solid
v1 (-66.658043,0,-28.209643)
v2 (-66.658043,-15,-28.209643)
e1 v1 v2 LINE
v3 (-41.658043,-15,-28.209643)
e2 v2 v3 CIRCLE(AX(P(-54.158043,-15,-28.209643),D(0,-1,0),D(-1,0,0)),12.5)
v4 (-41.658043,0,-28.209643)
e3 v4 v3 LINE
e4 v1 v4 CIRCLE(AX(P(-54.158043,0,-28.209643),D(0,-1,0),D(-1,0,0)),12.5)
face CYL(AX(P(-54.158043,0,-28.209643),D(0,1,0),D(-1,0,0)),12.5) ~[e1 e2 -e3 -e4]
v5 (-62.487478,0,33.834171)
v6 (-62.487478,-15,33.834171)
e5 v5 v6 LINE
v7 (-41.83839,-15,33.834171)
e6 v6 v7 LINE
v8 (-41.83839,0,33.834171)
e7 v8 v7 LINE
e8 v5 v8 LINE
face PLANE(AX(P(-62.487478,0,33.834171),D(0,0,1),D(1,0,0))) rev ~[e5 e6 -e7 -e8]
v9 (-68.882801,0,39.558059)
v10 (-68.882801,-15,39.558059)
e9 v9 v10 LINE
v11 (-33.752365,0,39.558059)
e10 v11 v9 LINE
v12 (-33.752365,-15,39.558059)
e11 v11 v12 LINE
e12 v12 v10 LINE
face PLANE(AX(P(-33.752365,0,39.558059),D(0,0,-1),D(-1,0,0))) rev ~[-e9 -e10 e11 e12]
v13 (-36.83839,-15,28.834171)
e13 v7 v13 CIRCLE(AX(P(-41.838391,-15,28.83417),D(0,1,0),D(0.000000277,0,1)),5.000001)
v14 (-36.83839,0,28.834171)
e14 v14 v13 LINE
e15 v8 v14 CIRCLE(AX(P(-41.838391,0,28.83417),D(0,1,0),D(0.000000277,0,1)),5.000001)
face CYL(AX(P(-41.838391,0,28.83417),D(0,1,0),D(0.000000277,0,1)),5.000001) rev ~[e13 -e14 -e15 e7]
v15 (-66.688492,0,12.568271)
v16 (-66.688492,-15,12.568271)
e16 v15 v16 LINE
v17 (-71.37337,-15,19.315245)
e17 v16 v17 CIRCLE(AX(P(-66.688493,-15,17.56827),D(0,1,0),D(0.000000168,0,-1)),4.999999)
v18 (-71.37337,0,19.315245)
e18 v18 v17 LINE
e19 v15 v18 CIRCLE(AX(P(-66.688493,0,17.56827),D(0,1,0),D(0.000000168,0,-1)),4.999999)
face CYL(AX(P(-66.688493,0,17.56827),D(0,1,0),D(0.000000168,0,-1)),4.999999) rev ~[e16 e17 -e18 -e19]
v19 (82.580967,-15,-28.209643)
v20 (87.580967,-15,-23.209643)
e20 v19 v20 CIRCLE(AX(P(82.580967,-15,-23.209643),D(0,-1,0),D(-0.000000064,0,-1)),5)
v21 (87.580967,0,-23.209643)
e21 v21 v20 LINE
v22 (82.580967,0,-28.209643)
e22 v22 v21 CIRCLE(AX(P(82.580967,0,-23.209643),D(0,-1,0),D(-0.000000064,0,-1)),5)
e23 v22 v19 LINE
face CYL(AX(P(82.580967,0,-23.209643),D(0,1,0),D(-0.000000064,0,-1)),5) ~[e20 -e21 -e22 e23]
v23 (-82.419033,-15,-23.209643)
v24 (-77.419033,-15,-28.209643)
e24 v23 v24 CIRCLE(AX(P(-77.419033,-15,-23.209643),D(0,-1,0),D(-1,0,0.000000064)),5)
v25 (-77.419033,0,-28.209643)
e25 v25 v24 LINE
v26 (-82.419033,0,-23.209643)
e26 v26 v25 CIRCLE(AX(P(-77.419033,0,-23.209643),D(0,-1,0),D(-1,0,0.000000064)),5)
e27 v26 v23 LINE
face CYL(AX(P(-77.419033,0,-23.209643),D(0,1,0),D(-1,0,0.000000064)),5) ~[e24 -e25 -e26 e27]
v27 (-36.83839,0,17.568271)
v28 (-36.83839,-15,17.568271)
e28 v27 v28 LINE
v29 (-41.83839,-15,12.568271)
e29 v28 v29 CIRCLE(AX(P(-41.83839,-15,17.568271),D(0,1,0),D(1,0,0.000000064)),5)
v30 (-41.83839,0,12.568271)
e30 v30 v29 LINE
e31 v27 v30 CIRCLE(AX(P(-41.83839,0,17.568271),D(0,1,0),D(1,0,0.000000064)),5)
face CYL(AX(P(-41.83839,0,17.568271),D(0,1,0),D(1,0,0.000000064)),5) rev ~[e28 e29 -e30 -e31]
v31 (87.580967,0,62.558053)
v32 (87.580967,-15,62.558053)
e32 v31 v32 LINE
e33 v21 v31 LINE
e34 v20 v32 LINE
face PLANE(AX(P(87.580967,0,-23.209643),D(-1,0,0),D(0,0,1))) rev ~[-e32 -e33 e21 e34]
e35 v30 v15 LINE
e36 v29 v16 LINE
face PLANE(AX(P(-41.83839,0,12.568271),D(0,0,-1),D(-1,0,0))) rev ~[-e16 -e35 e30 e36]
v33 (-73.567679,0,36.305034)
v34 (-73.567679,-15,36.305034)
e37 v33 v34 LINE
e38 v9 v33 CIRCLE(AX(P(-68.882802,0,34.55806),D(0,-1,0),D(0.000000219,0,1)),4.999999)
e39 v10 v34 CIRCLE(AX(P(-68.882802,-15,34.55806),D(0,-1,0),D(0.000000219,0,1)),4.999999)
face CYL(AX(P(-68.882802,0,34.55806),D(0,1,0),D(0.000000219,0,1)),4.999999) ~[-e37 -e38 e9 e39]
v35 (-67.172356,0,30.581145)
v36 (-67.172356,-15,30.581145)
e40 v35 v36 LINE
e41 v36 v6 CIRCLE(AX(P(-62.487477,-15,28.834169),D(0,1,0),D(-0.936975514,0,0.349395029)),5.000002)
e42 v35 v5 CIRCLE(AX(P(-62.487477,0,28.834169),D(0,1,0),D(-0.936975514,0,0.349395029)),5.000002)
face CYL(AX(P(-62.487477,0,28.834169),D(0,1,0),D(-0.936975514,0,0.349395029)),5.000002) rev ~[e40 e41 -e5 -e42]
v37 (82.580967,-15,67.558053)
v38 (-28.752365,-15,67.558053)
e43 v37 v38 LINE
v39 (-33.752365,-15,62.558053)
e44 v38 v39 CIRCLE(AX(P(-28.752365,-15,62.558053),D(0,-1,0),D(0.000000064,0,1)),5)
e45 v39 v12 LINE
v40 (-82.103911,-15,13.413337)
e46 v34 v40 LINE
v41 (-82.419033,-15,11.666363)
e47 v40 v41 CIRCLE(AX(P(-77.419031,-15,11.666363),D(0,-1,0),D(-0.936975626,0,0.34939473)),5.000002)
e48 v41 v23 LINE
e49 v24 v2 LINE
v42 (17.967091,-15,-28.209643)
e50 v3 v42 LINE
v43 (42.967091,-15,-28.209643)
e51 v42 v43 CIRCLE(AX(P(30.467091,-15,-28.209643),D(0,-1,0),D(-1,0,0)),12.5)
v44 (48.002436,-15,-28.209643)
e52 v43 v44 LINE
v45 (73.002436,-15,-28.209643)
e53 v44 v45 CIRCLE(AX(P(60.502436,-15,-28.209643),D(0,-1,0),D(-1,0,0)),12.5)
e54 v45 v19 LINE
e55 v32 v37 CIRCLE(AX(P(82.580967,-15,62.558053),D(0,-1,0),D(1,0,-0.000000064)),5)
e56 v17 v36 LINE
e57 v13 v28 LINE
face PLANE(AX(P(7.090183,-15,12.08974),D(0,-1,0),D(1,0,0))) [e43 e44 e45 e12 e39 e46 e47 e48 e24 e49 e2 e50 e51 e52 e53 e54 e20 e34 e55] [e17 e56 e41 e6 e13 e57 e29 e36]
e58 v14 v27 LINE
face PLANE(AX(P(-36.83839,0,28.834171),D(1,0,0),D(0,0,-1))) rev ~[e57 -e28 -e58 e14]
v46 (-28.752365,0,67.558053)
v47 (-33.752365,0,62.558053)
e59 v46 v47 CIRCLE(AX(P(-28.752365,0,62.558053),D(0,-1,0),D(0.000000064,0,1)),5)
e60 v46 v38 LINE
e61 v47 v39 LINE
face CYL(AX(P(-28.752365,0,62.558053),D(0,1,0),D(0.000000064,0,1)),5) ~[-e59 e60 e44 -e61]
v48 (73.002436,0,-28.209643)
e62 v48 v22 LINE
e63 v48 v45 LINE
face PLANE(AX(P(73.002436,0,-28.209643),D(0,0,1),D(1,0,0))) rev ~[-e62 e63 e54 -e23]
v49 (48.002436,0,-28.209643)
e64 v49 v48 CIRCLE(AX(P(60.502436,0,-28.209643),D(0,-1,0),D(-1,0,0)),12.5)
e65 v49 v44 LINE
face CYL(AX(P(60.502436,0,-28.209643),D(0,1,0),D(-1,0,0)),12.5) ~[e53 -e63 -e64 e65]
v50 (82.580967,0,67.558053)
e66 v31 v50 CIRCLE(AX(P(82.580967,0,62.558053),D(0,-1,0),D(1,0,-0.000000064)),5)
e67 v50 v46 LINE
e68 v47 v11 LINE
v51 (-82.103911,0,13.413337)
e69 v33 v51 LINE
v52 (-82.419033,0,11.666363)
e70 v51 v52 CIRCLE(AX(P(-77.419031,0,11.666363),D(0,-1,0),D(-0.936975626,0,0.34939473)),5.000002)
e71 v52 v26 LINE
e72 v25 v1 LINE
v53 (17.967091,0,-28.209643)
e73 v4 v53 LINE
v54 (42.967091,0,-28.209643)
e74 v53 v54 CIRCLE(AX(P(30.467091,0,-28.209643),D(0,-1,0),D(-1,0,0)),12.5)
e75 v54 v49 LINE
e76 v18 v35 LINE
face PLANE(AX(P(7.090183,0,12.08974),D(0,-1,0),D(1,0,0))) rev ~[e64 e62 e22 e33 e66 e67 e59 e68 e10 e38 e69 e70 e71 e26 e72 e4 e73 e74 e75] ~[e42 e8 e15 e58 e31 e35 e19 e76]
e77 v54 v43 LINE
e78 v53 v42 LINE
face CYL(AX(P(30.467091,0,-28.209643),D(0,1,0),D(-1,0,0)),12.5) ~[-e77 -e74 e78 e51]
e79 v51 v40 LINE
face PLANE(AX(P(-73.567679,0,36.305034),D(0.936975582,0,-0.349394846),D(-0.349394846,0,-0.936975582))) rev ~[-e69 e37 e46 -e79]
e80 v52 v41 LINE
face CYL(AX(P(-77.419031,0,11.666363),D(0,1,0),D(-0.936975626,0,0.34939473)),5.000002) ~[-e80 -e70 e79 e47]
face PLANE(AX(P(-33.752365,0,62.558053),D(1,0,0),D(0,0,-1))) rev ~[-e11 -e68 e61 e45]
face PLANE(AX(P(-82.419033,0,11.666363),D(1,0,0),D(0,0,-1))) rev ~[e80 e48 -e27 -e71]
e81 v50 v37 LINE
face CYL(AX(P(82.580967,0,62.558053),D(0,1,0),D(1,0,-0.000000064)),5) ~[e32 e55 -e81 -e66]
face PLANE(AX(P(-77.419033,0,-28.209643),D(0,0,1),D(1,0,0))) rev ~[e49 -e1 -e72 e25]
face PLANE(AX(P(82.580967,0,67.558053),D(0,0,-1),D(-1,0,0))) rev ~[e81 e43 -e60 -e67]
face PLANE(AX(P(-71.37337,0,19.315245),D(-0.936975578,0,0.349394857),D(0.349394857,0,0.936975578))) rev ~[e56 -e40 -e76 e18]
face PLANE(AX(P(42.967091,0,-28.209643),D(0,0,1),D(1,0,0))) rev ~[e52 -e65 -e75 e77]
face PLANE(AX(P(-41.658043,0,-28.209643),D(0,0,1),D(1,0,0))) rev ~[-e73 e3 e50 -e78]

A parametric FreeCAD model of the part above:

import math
import FreeCAD as App
import Part
import Sketcher

V = App.Vector

doc = App.newDocument("Part")
body = doc.addObject("PartDesign::Body", "Body")

# Sketch on XZ plane
sketch1 = body.newObject("Sketcher::SketchObject", "Sketch")
sketch1.AttachmentSupport = (doc.getObject("XZ_Plane"), [""])
sketch1.MapMode = "FlatFace"
sketch1.addGeometry([
    Part.LineSegment(V(-33.752365, 39.558059, 0), V(-68.882801, 39.558059, 0)),  # 0
    Part.ArcOfCircle(Part.Circle(V(-68.882802, 34.55806, 0), V(0, 0, 1), 4.999999), math.radians(89.999987), math.radians(159.549693)),  # 1
    Part.LineSegment(V(-73.567679, 36.305034, 0), V(-82.103911, 13.413337, 0)),  # 2
    Part.ArcOfCircle(Part.Circle(V(-77.419031, 11.666363, 0), V(0, 0, 1), 5.000002), math.radians(159.549701), math.radians(179.999996)),  # 3
    Part.LineSegment(V(-82.419033, 11.666363, 0), V(-82.419033, -23.209643, 0)),  # 4
    Part.ArcOfCircle(Part.Circle(V(-77.419033, -23.209643, 0), V(0, 0, 1), 5), math.radians(179.999996), math.radians(270.000004)),  # 5
    Part.LineSegment(V(-77.419033, -28.209643, 0), V(-66.658043, -28.209643, 0)),  # 6
    Part.ArcOfCircle(Part.Circle(V(-54.158043, -28.209643, 0), V(0, 0, 1), 12.5), math.radians(180), math.radians(360)),  # 7
    Part.LineSegment(V(-41.658043, -28.209643, 0), V(17.967091, -28.209643, 0)),  # 8
    Part.ArcOfCircle(Part.Circle(V(30.467091, -28.209643, 0), V(0, 0, 1), 12.5), math.radians(180), math.radians(360)),  # 9
    Part.LineSegment(V(42.967091, -28.209643, 0), V(48.002436, -28.209643, 0)),  # 10
    Part.ArcOfCircle(Part.Circle(V(60.502436, -28.209643, 0), V(0, 0, 1), 12.5), math.radians(180), math.radians(360)),  # 11
    Part.LineSegment(V(73.002436, -28.209643, 0), V(82.580967, -28.209643, 0)),  # 12
    Part.ArcOfCircle(Part.Circle(V(82.580967, -23.209643, 0), V(0, 0, 1), 5), math.radians(-90.000004), math.radians(0.000004)),  # 13
    Part.LineSegment(V(87.580967, -23.209643, 0), V(87.580967, 62.558053, 0)),  # 14
    Part.ArcOfCircle(Part.Circle(V(82.580967, 62.558053, 0), V(0, 0, 1), 5), math.radians(-0.000004), math.radians(90.000004)),  # 15
    Part.LineSegment(V(82.580967, 67.558053, 0), V(-28.752365, 67.558053, 0)),  # 16
    Part.ArcOfCircle(Part.Circle(V(-28.752365, 62.558053, 0), V(0, 0, 1), 5), math.radians(89.999996), math.radians(180.000004)),  # 17
    Part.LineSegment(V(-33.752365, 62.558053, 0), V(-33.752365, 39.558059, 0)),  # 18
    Part.LineSegment(V(-71.37337, 19.315245, 0), V(-67.172356, 30.581145, 0)),  # 19
    Part.ArcOfCircle(Part.Circle(V(-62.487477, 28.834169, 0), V(0, 0, 1), 5.000002), math.radians(90.000014), math.radians(159.549683)),  # 20
    Part.LineSegment(V(-62.487478, 33.834171, 0), V(-41.83839, 33.834171, 0)),  # 21
    Part.ArcOfCircle(Part.Circle(V(-41.838391, 28.83417, 0), V(0, 0, 1), 5.000001), math.radians(0.000016), math.radians(89.999984)),  # 22
    Part.LineSegment(V(-36.83839, 28.834171, 0), V(-36.83839, 17.568271, 0)),  # 23
    Part.ArcOfCircle(Part.Circle(V(-41.83839, 17.568271, 0), V(0, 0, 1), 5), math.radians(-90.000004), math.radians(0.000004)),  # 24
    Part.LineSegment(V(-41.83839, 12.568271, 0), V(-66.688492, 12.568271, 0)),  # 25
    Part.ArcOfCircle(Part.Circle(V(-66.688493, 17.56827, 0), V(0, 0, 1), 4.999999), math.radians(159.549688), math.radians(270.00001)),  # 26
], False)
sketch1.addConstraint([
    Sketcher.Constraint("Tangent", 0, 2, 1, 1),
    Sketcher.Constraint("Tangent", 1, 2, 2, 1),
    Sketcher.Constraint("Tangent", 2, 2, 3, 1),
    Sketcher.Constraint("Tangent", 3, 2, 4, 1),
    Sketcher.Constraint("Tangent", 4, 2, 5, 1),
    Sketcher.Constraint("Tangent", 5, 2, 6, 1),
    Sketcher.Constraint("Coincident", 6, 2, 7, 1),
    Sketcher.Constraint("Coincident", 7, 2, 8, 1),
    Sketcher.Constraint("Coincident", 8, 2, 9, 1),
    Sketcher.Constraint("Coincident", 9, 2, 10, 1),
    Sketcher.Constraint("Coincident", 10, 2, 11, 1),
    Sketcher.Constraint("Coincident", 11, 2, 12, 1),
    Sketcher.Constraint("Tangent", 12, 2, 13, 1),
    Sketcher.Constraint("Tangent", 13, 2, 14, 1),
    Sketcher.Constraint("Tangent", 14, 2, 15, 1),
    Sketcher.Constraint("Tangent", 15, 2, 16, 1),
    Sketcher.Constraint("Tangent", 16, 2, 17, 1),
    Sketcher.Constraint("Tangent", 17, 2, 18, 1),
    Sketcher.Constraint("Coincident", 18, 2, 0, 1),
    Sketcher.Constraint("Tangent", 19, 2, 20, 2),
    Sketcher.Constraint("Tangent", 20, 1, 21, 1),
    Sketcher.Constraint("Tangent", 21, 2, 22, 2),
    Sketcher.Constraint("Tangent", 22, 1, 23, 1),
    Sketcher.Constraint("Tangent", 23, 2, 24, 2),
    Sketcher.Constraint("Tangent", 24, 1, 25, 1),
    Sketcher.Constraint("Tangent", 25, 2, 26, 2),
    Sketcher.Constraint("Tangent", 26, 1, 19, 1),
    Sketcher.Constraint("Horizontal", 0),
    Sketcher.Constraint("Vertical", 4),
    Sketcher.Constraint("Horizontal", 6),
    Sketcher.Constraint("Horizontal", 8),
    Sketcher.Constraint("Horizontal", 10),
    Sketcher.Constraint("Horizontal", 12),
    Sketcher.Constraint("Vertical", 14),
    Sketcher.Constraint("Horizontal", 16),
    Sketcher.Constraint("Vertical", 18),
    Sketcher.Constraint("Horizontal", 21),
    Sketcher.Constraint("Vertical", 23),
    Sketcher.Constraint("Horizontal", 25),
    Sketcher.Constraint("Equal", 1, 5),
    Sketcher.Constraint("Equal", 7, 9),
    Sketcher.Constraint("Equal", 9, 11),
    Sketcher.Constraint("Equal", 5, 13),
    Sketcher.Constraint("Equal", 13, 15),
    Sketcher.Constraint("Equal", 15, 17),
    Sketcher.Constraint("Equal", 3, 20),
    Sketcher.Constraint("Equal", 20, 22),
    Sketcher.Constraint("Equal", 22, 24),
    Sketcher.Constraint("Equal", 24, 26),
    Sketcher.Constraint("Parallel", 2, 19),
    Sketcher.Constraint("Horizontal", 7, 3, 9, 3),
    Sketcher.Constraint("Horizontal", 9, 3, 11, 3),
    Sketcher.Constraint("Horizontal", 5, 3, 13, 3),
    Sketcher.Constraint("Horizontal", 11, 3, 5, 2),
    Sketcher.Constraint("Horizontal", 6, 2, 7, 2),
    Sketcher.Constraint("Horizontal", 8, 2, 9, 2),
    Sketcher.Constraint("Radius", 1, 4.999999),
    Sketcher.Constraint("Radius", 20, 5.000002),
    Sketcher.Constraint("Radius", 7, 12.5),
    Sketcher.Constraint("DistanceX", 5, 3, 13, 3, 160.000001),
    Sketcher.Constraint("DistanceX", 25, 2, 25, 1, 24.850102),
    Sketcher.Constraint("DistanceY", 23, 2, 23, 1, 11.2659),
    Sketcher.Constraint("DistanceX", 6, 1, 6, 2, 10.76099),
    Sketcher.Constraint("DistanceX", 12, 1, 12, 2, 9.578531),
    Sketcher.Constraint("DistanceX", 16, 2, 16, 1, 111.333332),
    Sketcher.Constraint("DistanceX", 21, 1, 21, 2, 20.649088),
    Sketcher.Constraint("DistanceX", 0, 2, -1, 1, 68.882801),
    Sketcher.Constraint("DistanceX", 1, 2, 20, 1, 11.080201),
    Sketcher.Constraint("DistanceX", 0, 2, 0, 1, 35.130436),
    Sketcher.Constraint("DistanceX", 8, 1, 8, 2, 59.625134),
    Sketcher.Constraint("DistanceY", 4, 2, 4, 1, 34.876006),
    Sketcher.Constraint("DistanceY", 14, 1, 14, 2, 85.767696),
    Sketcher.Constraint("DistanceY", -1, 1, 1, 3, 34.55806),
    Sketcher.Constraint("DistanceY", -1, 1, 20, 3, 28.834169),
])
pad1 = body.newObject("PartDesign::Pad", "Pad")
pad1.Profile = sketch1
pad1.Length = 15

doc.recompute()
